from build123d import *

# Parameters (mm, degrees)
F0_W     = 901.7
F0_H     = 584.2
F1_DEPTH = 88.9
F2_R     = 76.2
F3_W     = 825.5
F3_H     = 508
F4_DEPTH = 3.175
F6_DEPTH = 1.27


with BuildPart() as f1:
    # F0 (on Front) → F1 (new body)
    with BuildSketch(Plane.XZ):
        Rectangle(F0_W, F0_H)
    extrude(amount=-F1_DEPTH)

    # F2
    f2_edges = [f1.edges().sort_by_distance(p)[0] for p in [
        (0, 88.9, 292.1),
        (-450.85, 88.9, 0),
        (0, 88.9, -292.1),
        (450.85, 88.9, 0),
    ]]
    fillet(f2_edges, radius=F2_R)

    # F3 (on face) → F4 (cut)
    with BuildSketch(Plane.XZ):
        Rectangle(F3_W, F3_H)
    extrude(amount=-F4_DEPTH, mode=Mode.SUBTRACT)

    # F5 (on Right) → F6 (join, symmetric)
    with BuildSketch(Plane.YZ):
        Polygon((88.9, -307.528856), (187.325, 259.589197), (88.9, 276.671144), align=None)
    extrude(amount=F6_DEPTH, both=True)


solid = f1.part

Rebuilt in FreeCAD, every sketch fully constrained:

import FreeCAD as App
import Part
import Sketcher
Q = App.Units.Quantity


def edges_at(feature, points):
    """Names of the edges that pass closest to the given points."""
    edges = feature.Shape.Edges
    near = lambda p: min(range(len(edges)), key=lambda i: edges[i].distToShape(Part.Vertex(*p))[0])
    return sorted({f"Edge{near(p) + 1}" for p in points})


def add_polygon(sketch, points):
    """Adds a closed chain of lines whose ends are joined by coincident constraints."""
    first, n = sketch.GeometryCount, len(points)
    for a, b in zip(points, points[1:] + points[:1]):
        sketch.addGeometry(Part.LineSegment(App.Vector(*a, 0), App.Vector(*b, 0)), False)
    for i in range(n):
        sketch.addConstraint(Sketcher.Constraint("Coincident", first + i, 2, first + (i + 1) % n, 1))

doc = App.newDocument("Part")
body = doc.addObject("PartDesign::Body", "Body")

# Sketch on XZ plane
sketch1 = body.newObject("Sketcher::SketchObject", "Sketch")
sketch1.AttachmentSupport = (doc.getObject("XZ_Plane"), [""])
sketch1.MapMode = "FlatFace"
add_polygon(sketch1, [(-451, 292), (-451, -292), (451, -292), (451, 292)])  # lines 0-3
sketch1.addConstraint([
    Sketcher.Constraint("Vertical", 0),
    Sketcher.Constraint("Horizontal", 1),
    Sketcher.Constraint("Vertical", 2),
    Sketcher.Constraint("Horizontal", 3),
    Sketcher.Constraint("Symmetric", 0, 2, 2, 2, -1, 1),
    Sketcher.Constraint("DistanceY", 0, 2, 0, 1, Q("23 in")),
    Sketcher.Constraint("DistanceX", 1, 1, 1, 2, Q("35.5 in")),
])
pad1 = body.newObject("PartDesign::Pad", "Pad")
pad1.Profile = sketch1
pad1.Length = Q("3.5 in")
pad1.Reversed = True
doc.recompute()

fillet = body.newObject("PartDesign::Fillet", "Fillet")
fillet.Base = (pad1, edges_at(pad1, [
    (0, 88.9, 292.1),
    (-450.85, 88.9, 0),
    (0, 88.9, -292.1),
    (450.85, 88.9, 0),
]))
fillet.Radius = Q("3 in")

# Sketch on XZ plane
sketch2 = body.newObject("Sketcher::SketchObject", "Sketch001")
sketch2.AttachmentSupport = (doc.getObject("XZ_Plane"), [""])
sketch2.MapMode = "FlatFace"
add_polygon(sketch2, [(-413, 254), (-413, -254), (413, -254), (413, 254)])  # lines 0-3
sketch2.addConstraint([
    Sketcher.Constraint("Vertical", 0),
    Sketcher.Constraint("Horizontal", 1),
    Sketcher.Constraint("Vertical", 2),
    Sketcher.Constraint("Horizontal", 3),
    Sketcher.Constraint("Symmetric", 0, 2, 2, 2, -1, 1),
    Sketcher.Constraint("DistanceY", 0, 2, 0, 1, Q("20 in")),
    Sketcher.Constraint("DistanceX", 1, 1, 1, 2, Q("32.5 in")),
])
pocket1 = body.newObject("PartDesign::Pocket", "Pocket")
pocket1.Profile = sketch2
pocket1.Length = Q("0.125 in")

# Sketch on YZ plane
sketch3 = body.newObject("Sketcher::SketchObject", "Sketch002")
sketch3.AttachmentSupport = (doc.getObject("YZ_Plane"), [""])
sketch3.MapMode = "FlatFace"
add_polygon(sketch3, [(89, -308), (187, 260), (89, 277)])  # lines 0-2
sketch3.addConstraint([
    Sketcher.Constraint("Vertical", 2),
    Sketcher.Constraint("Perpendicular", 0, 1),
    Sketcher.Constraint("DistanceY", 2, 2, 2, 1, Q("23 in")),
    Sketcher.Constraint("DistanceX", -1, 1, 1, 2, Q("3.5 in")),
    Sketcher.Constraint("DistanceX", -1, 1, 0, 2, Q("7.375 in")),
    Sketcher.Constraint("DistanceY", -1, 1, 0, 2, Q("259.589197 mm")),
])
pad2 = body.newObject("PartDesign::Pad", "Pad001")
pad2.Profile = sketch3
pad2.Length = Q("0.1 in")
pad2.Midplane = True

doc.recompute()
